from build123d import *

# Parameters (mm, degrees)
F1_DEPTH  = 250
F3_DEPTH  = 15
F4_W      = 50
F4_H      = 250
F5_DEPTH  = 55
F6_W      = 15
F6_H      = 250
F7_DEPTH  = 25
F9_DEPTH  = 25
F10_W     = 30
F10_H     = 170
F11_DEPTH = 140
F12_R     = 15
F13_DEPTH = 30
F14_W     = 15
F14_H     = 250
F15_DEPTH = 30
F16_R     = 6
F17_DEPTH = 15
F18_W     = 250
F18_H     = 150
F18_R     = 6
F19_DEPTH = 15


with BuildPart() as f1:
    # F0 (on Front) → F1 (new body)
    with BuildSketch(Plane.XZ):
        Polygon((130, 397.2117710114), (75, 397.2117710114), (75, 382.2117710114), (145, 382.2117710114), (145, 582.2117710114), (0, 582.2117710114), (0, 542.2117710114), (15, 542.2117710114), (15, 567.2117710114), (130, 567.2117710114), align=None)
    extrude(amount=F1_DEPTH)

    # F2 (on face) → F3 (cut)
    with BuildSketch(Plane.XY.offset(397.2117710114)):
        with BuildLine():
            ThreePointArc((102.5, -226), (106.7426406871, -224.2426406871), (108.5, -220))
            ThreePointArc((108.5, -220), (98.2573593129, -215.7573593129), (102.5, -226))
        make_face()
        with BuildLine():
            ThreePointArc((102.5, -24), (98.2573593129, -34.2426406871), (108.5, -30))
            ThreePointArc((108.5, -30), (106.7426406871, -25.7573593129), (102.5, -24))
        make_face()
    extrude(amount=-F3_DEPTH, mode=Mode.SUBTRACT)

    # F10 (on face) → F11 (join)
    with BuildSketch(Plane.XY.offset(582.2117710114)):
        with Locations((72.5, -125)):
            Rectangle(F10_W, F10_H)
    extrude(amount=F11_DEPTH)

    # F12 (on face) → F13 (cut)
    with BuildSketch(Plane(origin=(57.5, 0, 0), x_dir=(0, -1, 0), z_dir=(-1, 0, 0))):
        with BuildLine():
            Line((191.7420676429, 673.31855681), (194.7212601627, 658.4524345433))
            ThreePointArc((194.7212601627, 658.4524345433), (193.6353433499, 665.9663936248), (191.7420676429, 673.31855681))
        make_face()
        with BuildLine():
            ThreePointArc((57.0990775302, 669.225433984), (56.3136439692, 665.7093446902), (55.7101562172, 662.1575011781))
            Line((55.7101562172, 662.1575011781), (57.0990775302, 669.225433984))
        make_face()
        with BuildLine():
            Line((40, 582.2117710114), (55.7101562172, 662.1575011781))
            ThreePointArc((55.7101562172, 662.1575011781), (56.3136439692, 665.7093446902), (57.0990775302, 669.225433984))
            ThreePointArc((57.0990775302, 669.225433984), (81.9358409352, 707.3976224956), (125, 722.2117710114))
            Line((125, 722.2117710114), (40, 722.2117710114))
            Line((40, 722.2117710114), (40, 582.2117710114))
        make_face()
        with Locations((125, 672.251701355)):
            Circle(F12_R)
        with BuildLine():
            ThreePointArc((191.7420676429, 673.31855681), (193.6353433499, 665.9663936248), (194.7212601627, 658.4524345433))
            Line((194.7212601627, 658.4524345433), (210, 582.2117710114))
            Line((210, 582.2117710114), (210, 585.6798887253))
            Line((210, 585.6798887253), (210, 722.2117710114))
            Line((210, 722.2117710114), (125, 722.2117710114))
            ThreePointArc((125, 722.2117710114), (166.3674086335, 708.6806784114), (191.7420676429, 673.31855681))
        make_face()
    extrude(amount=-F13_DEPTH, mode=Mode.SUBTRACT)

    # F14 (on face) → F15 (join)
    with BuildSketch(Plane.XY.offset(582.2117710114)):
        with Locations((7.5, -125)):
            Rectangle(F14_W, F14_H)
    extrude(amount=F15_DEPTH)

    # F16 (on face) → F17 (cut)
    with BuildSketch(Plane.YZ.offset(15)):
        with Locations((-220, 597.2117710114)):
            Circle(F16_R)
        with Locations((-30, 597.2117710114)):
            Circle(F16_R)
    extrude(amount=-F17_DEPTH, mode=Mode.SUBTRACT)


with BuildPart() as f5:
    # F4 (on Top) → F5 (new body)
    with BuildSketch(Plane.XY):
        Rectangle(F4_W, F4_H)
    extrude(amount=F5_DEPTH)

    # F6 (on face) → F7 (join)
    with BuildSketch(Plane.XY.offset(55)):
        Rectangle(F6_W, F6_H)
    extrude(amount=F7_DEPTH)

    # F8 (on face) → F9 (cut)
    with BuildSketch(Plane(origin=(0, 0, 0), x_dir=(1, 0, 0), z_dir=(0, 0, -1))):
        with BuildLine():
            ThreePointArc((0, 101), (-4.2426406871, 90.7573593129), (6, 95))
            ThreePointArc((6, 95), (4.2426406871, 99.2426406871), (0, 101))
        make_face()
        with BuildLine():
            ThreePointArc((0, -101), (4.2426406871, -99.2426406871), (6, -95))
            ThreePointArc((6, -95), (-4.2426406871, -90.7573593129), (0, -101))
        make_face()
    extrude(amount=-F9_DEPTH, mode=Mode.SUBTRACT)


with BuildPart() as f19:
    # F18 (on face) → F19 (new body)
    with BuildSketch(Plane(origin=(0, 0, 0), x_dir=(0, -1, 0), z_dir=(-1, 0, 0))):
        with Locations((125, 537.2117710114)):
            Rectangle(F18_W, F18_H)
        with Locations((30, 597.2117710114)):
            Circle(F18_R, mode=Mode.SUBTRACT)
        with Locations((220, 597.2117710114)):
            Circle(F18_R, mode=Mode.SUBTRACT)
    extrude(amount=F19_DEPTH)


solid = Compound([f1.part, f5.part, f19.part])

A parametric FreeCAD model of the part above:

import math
import FreeCAD as App
import Part
import Sketcher

V = App.Vector

doc = App.newDocument("Part")
body = doc.addObject("PartDesign::Body", "Body")

# Sketch on XZ plane
sketch1 = body.newObject("Sketcher::SketchObject", "Sketch")
sketch1.AttachmentSupport = (doc.getObject("XZ_Plane"), [""])
sketch1.MapMode = "FlatFace"
sketch1.addGeometry([
    Part.LineSegment(V(130, 397.211771, 0), V(75, 397.211771, 0)),  # 0
    Part.LineSegment(V(75, 397.211771, 0), V(75, 382.211771, 0)),  # 1
    Part.LineSegment(V(75, 382.211771, 0), V(145, 382.211771, 0)),  # 2
    Part.LineSegment(V(145, 382.211771, 0), V(145, 582.211771, 0)),  # 3
    Part.LineSegment(V(145, 582.211771, 0), V(0, 582.211771, 0)),  # 4
    Part.LineSegment(V(0, 582.211771, 0), V(0, 542.211771, 0)),  # 5
    Part.LineSegment(V(0, 542.211771, 0), V(15, 542.211771, 0)),  # 6
    Part.LineSegment(V(15, 542.211771, 0), V(15, 567.211771, 0)),  # 7
    Part.LineSegment(V(15, 567.211771, 0), V(130, 567.211771, 0)),  # 8
    Part.LineSegment(V(130, 567.211771, 0), V(130, 397.211771, 0)),  # 9
], False)
sketch1.addConstraint([
    Sketcher.Constraint("Coincident", 0, 2, 1, 1),
    Sketcher.Constraint("Coincident", 1, 2, 2, 1),
    Sketcher.Constraint("Coincident", 2, 2, 3, 1),
    Sketcher.Constraint("Coincident", 3, 2, 4, 1),
    Sketcher.Constraint("Coincident", 4, 2, 5, 1),
    Sketcher.Constraint("Coincident", 5, 2, 6, 1),
    Sketcher.Constraint("Coincident", 6, 2, 7, 1),
    Sketcher.Constraint("Coincident", 7, 2, 8, 1),
    Sketcher.Constraint("Coincident", 8, 2, 9, 1),
    Sketcher.Constraint("Coincident", 9, 2, 0, 1),
    Sketcher.Constraint("Horizontal", 0),
    Sketcher.Constraint("Vertical", 1),
    Sketcher.Constraint("Horizontal", 2),
    Sketcher.Constraint("Vertical", 3),
    Sketcher.Constraint("Horizontal", 4),
    Sketcher.Constraint("Vertical", 5),
    Sketcher.Constraint("Horizontal", 6),
    Sketcher.Constraint("Vertical", 7),
    Sketcher.Constraint("Horizontal", 8),
    Sketcher.Constraint("Vertical", 9),
    Sketcher.Constraint("PointOnObject", 4, 2, -2),
    Sketcher.Constraint("Equal", 6, 1),
    Sketcher.Constraint("DistanceX", 0, 2, 0, 1, 55.0),
    Sketcher.Constraint("DistanceX", 2, 1, 2, 2, 70.0),
    Sketcher.Constraint("DistanceX", 4, 2, 4, 1, 145.0),
    Sketcher.Constraint("DistanceX", 6, 1, 6, 2, 15.0),
    Sketcher.Constraint("DistanceY", 3, 1, 3, 2, 200.0),
    Sketcher.Constraint("DistanceY", 5, 2, 5, 1, 40.0),
    Sketcher.Constraint("DistanceY", 7, 1, 7, 2, 25.0),
    Sketcher.Constraint("DistanceY", -1, 1, 0, 2, 397.211771),
])
pad1 = body.newObject("PartDesign::Pad", "Pad")
pad1.Profile = sketch1
pad1.Length = 250

# Sketch on XY plane
sketch2 = body.newObject("Sketcher::SketchObject", "Sketch001")
sketch2.AttachmentSupport = (doc.getObject("XY_Plane"), [""])
sketch2.MapMode = "FlatFace"
sketch2.AttachmentOffset = App.Placement(V(0, 0, 397.211771), App.Rotation())
sketch2.addGeometry([
    Part.ArcOfCircle(Part.Circle(V(102.5, -220, 0), V(0, 0, 1), 6), math.radians(-90), math.radians(0)),
    Part.ArcOfCircle(Part.Circle(V(102.5, -220, 0), V(0, 0, 1), 6), math.radians(0), math.radians(270)),
    Part.ArcOfCircle(Part.Circle(V(102.5, -30, 0), V(0, 0, 1), 6), math.radians(90), math.radians(360)),
    Part.ArcOfCircle(Part.Circle(V(102.5, -30, 0), V(0, 0, 1), 6), math.radians(0), math.radians(90)),
], False)
sketch2.addConstraint([
    Sketcher.Constraint("Tangent", 0, 1, 1, 2),
    Sketcher.Constraint("Coincident", 1, 1, 0, 2),
    Sketcher.Constraint("Tangent", 2, 1, 3, 2),
    Sketcher.Constraint("Coincident", 3, 1, 2, 2),
    Sketcher.Constraint("Equal", 1, 2),
    Sketcher.Constraint("Horizontal", 0, 3, 1, 1),
    Sketcher.Constraint("Horizontal", 2, 3, 3, 1),
    Sketcher.Constraint("Vertical", 1, 3, 2, 3),
    Sketcher.Constraint("Vertical", 3, 3, 0, 1),
    Sketcher.Constraint("Vertical", 0, 1, 2, 1),
    Sketcher.Constraint("Radius", 0, 6.0),
    Sketcher.Constraint("DistanceY", 0, 3, -1, 1, 220.0),
    Sketcher.Constraint("DistanceY", 2, 3, -1, 1, 30.0),
    Sketcher.Constraint("DistanceX", -1, 1, 0, 3, 102.5),
])
pocket1 = body.newObject("PartDesign::Pocket", "Pocket")
pocket1.Profile = sketch2
pocket1.Length = 15

# Sketch on XY plane
sketch3 = body.newObject("Sketcher::SketchObject", "Sketch002")
sketch3.AttachmentSupport = (doc.getObject("XY_Plane"), [""])
sketch3.MapMode = "FlatFace"
sketch3.AttachmentOffset = App.Placement(V(0, 0, 582.211771), App.Rotation())
sketch3.addGeometry([
    Part.LineSegment(V(57.5, -40, 0), V(57.5, -210, 0)),
    Part.LineSegment(V(57.5, -210, 0), V(87.5, -210, 0)),
    Part.LineSegment(V(87.5, -210, 0), V(87.5, -40, 0)),
    Part.LineSegment(V(87.5, -40, 0), V(57.5, -40, 0)),
], False)
sketch3.addConstraint([
    Sketcher.Constraint("Coincident", 0, 2, 1, 1),
    Sketcher.Constraint("Coincident", 1, 2, 2, 1),
    Sketcher.Constraint("Coincident", 2, 2, 3, 1),
    Sketcher.Constraint("Coincident", 3, 2, 0, 1),
    Sketcher.Constraint("Vertical", 0),
    Sketcher.Constraint("Horizontal", 1),
    Sketcher.Constraint("Vertical", 2),
    Sketcher.Constraint("Horizontal", 3),
    Sketcher.Constraint("DistanceX", 1, 1, 1, 2, 30.0),
    Sketcher.Constraint("DistanceY", 0, 2, 0, 1, 170.0),
    Sketcher.Constraint("DistanceY", 0, 2, -1, 1, 210.0),
    Sketcher.Constraint("DistanceX", -1, 1, 0, 2, 57.5),
])
pad2 = body.newObject("PartDesign::Pad", "Pad001")
pad2.Profile = sketch3
pad2.Length = 140

# Sketch on YZ plane
sketch4 = body.newObject("Sketcher::SketchObject", "Sketch003")
sketch4.AttachmentSupport = (doc.getObject("YZ_Plane"), [""])
sketch4.MapMode = "FlatFace"
sketch4.AttachmentOffset = App.Placement(V(0, 0, 57.5), App.Rotation())
sketch4.addGeometry([
    Part.LineSegment(V(-191.742068, 673.318557, 0), V(-194.72126, 658.452435, 0)),  # 0
    Part.LineSegment(V(-194.72126, 658.452435, 0), V(-210, 582.211771, 0)),  # 1
    Part.LineSegment(V(-210, 582.211771, 0), V(-210, 722.211771, 0)),  # 2
    Part.LineSegment(V(-210, 722.211771, 0), V(-125, 722.211771, 0)),  # 3
    Part.ArcOfCircle(Part.Circle(V(-125, 652.211771, 0), V(0, 0, 1), 70), math.radians(90), math.radians(162.450748)),  # 4
    Part.LineSegment(V(-55.710156, 662.157501, 0), V(-57.099078, 669.225434, 0)),  # 5
    Part.ArcOfCircle(Part.Circle(V(-125, 652.211771, 0), V(0, 0, 1), 70), math.radians(14.066762), math.radians(90)),  # 6
    Part.LineSegment(V(-125, 722.211771, 0), V(-40, 722.211771, 0)),  # 7
    Part.LineSegment(V(-40, 722.211771, 0), V(-40, 582.211771, 0)),  # 8
    Part.LineSegment(V(-40, 582.211771, 0), V(-55.710156, 662.157501, 0)),  # 9
    Part.Circle(V(-125, 672.251701, 0), V(0, 0, 1), 15),  # 10
], False)
sketch4.addConstraint([
    Sketcher.Constraint("Coincident", 0, 2, 1, 1),
    Sketcher.Constraint("Coincident", 1, 2, 2, 1),
    Sketcher.Constraint("Coincident", 2, 2, 3, 1),
    Sketcher.Constraint("Tangent", 3, 2, 4, 1),
    Sketcher.Constraint("Coincident", 4, 2, 0, 1),
    Sketcher.Constraint("Coincident", 5, 2, 6, 1),
    Sketcher.Constraint("Tangent", 6, 2, 7, 1),
    Sketcher.Constraint("Coincident", 7, 2, 8, 1),
    Sketcher.Constraint("Coincident", 8, 2, 9, 1),
    Sketcher.Constraint("Coincident", 9, 2, 5, 1),
    Sketcher.Constraint("Vertical", 2),
    Sketcher.Constraint("Horizontal", 3),
    Sketcher.Constraint("Horizontal", 7),
    Sketcher.Constraint("Vertical", 8),
    Sketcher.Constraint("Coincident", 6, 3, 4, 3),
    Sketcher.Constraint("Equal", 4, 6),
    Sketcher.Constraint("Parallel", 0, 1),
    Sketcher.Constraint("Parallel", 5, 9),
    Sketcher.Constraint("Horizontal", 1, 2, 8, 2),
    Sketcher.Constraint("Vertical", 6, 3, 10, 3),
    Sketcher.Constraint("Equal", 3, 7),
    Sketcher.Constraint("Diameter", 10, 30.0),
    Sketcher.Constraint("Radius", 4, 70.0),
    Sketcher.Constraint("DistanceX", 3, 1, 3, 2, 85.0),
    Sketcher.Constraint("DistanceY", 2, 1, 2, 2, 140.0),
    Sketcher.Constraint("DistanceX", 4, 3, -1, 1, 125.0),
    Sketcher.Constraint("Distance", 0, 15.161701),
    Sketcher.Constraint("DistanceY", -1, 1, 10, 3, 672.251701),
    Sketcher.Constraint("DistanceY", -1, 1, 9, 2, 662.157501),
    Sketcher.Constraint("Distance", 5, 7.203109),
    Sketcher.Constraint("DistanceY", -1, 1, 4, 3, 652.211771),
    Sketcher.Constraint("DistanceX", 0, 2, -1, 1, 194.72126),
])
pocket2 = body.newObject("PartDesign::Pocket", "Pocket001")
pocket2.Profile = sketch4
pocket2.Length = 30
pocket2.Reversed = True

# Sketch on XY plane
sketch5 = body.newObject("Sketcher::SketchObject", "Sketch004")
sketch5.AttachmentSupport = (doc.getObject("XY_Plane"), [""])
sketch5.MapMode = "FlatFace"
sketch5.AttachmentOffset = App.Placement(V(0, 0, 582.211771), App.Rotation())
sketch5.addGeometry([
    Part.LineSegment(V(0, 0, 0), V(0, -250, 0)),
    Part.LineSegment(V(0, -250, 0), V(15, -250, 0)),
    Part.LineSegment(V(15, -250, 0), V(15, 0, 0)),
    Part.LineSegment(V(15, 0, 0), V(0, 0, 0)),
], False)
sketch5.addConstraint([
    Sketcher.Constraint("Coincident", 0, 2, 1, 1),
    Sketcher.Constraint("Coincident", 1, 2, 2, 1),
    Sketcher.Constraint("Coincident", 2, 2, 3, 1),
    Sketcher.Constraint("Coincident", 3, 2, 0, 1),
    Sketcher.Constraint("Vertical", 0),
    Sketcher.Constraint("Horizontal", 1),
    Sketcher.Constraint("Vertical", 2),
    Sketcher.Constraint("Horizontal", 3),
    Sketcher.Constraint("Coincident", 3, 2, -1, 1),
    Sketcher.Constraint("DistanceX", 1, 1, 1, 2, 15.0),
    Sketcher.Constraint("DistanceY", 0, 2, 0, 1, 250.0),
])
pad3 = body.newObject("PartDesign::Pad", "Pad002")
pad3.Profile = sketch5
pad3.Length = 30

# Sketch on YZ plane
sketch6 = body.newObject("Sketcher::SketchObject", "Sketch005")
sketch6.AttachmentSupport = (doc.getObject("YZ_Plane"), [""])
sketch6.MapMode = "FlatFace"
sketch6.AttachmentOffset = App.Placement(V(0, 0, 15), App.Rotation())
sketch6.addGeometry([
    Part.Circle(V(-220, 597.211771, 0), V(0, 0, 1), 6),
    Part.Circle(V(-30, 597.211771, 0), V(0, 0, 1), 6),
], False)
sketch6.addConstraint([
    Sketcher.Constraint("Equal", 0, 1),
    Sketcher.Constraint("Horizontal", 0, 3, 1, 3),
    Sketcher.Constraint("Diameter", 0, 12.0),
    Sketcher.Constraint("DistanceX", 0, 3, -1, 1, 220.0),
    Sketcher.Constraint("DistanceX", 1, 3, -1, 1, 30.0),
    Sketcher.Constraint("DistanceY", -1, 1, 0, 3, 597.211771),
])
pocket3 = body.newObject("PartDesign::Pocket", "Pocket002")
pocket3.Profile = sketch6
pocket3.Length = 15
body2 = doc.addObject("PartDesign::Body", "Body001")

# Sketch on XY plane
sketch7 = body2.newObject("Sketcher::SketchObject", "Sketch006")
sketch7.AttachmentSupport = (doc.getObject("XY_Plane001"), [""])
sketch7.MapMode = "FlatFace"
sketch7.addGeometry([
    Part.LineSegment(V(-25, 125, 0), V(-25, -125, 0)),
    Part.LineSegment(V(-25, -125, 0), V(25, -125, 0)),
    Part.LineSegment(V(25, -125, 0), V(25, 125, 0)),
    Part.LineSegment(V(25, 125, 0), V(-25, 125, 0)),
], False)
sketch7.addConstraint([
    Sketcher.Constraint("Coincident", 0, 2, 1, 1),
    Sketcher.Constraint("Coincident", 1, 2, 2, 1),
    Sketcher.Constraint("Coincident", 2, 2, 3, 1),
    Sketcher.Constraint("Coincident", 3, 2, 0, 1),
    Sketcher.Constraint("Vertical", 0),
    Sketcher.Constraint("Horizontal", 1),
    Sketcher.Constraint("Vertical", 2),
    Sketcher.Constraint("Horizontal", 3),
    Sketcher.Constraint("Symmetric", 0, 2, 2, 2, -1, 1),
    Sketcher.Constraint("DistanceX", 1, 1, 1, 2, 50.0),
    Sketcher.Constraint("DistanceY", 0, 2, 0, 1, 250.0),
])
pad4 = body2.newObject("PartDesign::Pad", "Pad003")
pad4.Profile = sketch7
pad4.Length = 55

# Sketch on XY plane
sketch8 = body2.newObject("Sketcher::SketchObject", "Sketch007")
sketch8.AttachmentSupport = (doc.getObject("XY_Plane001"), [""])
sketch8.MapMode = "FlatFace"
sketch8.AttachmentOffset = App.Placement(V(0, 0, 55), App.Rotation())
sketch8.addGeometry([
    Part.LineSegment(V(-7.5, 125, 0), V(-7.5, -125, 0)),
    Part.LineSegment(V(-7.5, -125, 0), V(7.5, -125, 0)),
    Part.LineSegment(V(7.5, -125, 0), V(7.5, 125, 0)),
    Part.LineSegment(V(7.5, 125, 0), V(-7.5, 125, 0)),
], False)
sketch8.addConstraint([
    Sketcher.Constraint("Coincident", 0, 2, 1, 1),
    Sketcher.Constraint("Coincident", 1, 2, 2, 1),
    Sketcher.Constraint("Coincident", 2, 2, 3, 1),
    Sketcher.Constraint("Coincident", 3, 2, 0, 1),
    Sketcher.Constraint("Vertical", 0),
    Sketcher.Constraint("Horizontal", 1),
    Sketcher.Constraint("Vertical", 2),
    Sketcher.Constraint("Horizontal", 3),
    Sketcher.Constraint("Symmetric", 0, 2, 2, 2, -1, 1),
    Sketcher.Constraint("DistanceX", 1, 1, 1, 2, 15.0),
    Sketcher.Constraint("DistanceY", 0, 2, 0, 1, 250.0),
])
pad5 = body2.newObject("PartDesign::Pad", "Pad004")
pad5.Profile = sketch8
pad5.Length = 25

# Sketch on XY plane
sketch9 = body2.newObject("Sketcher::SketchObject", "Sketch008")
sketch9.AttachmentSupport = (doc.getObject("XY_Plane001"), [""])
sketch9.MapMode = "FlatFace"
sketch9.addGeometry([
    Part.ArcOfCircle(Part.Circle(V(0, -95, 0), V(0, 0, 1), 6), math.radians(0), math.radians(270)),
    Part.ArcOfCircle(Part.Circle(V(0, -95, 0), V(0, 0, 1), 6), math.radians(-90), math.radians(0)),
    Part.ArcOfCircle(Part.Circle(V(0, 95, 0), V(0, 0, 1), 6), math.radians(0), math.radians(90)),
    Part.ArcOfCircle(Part.Circle(V(0, 95, 0), V(0, 0, 1), 6), math.radians(90), math.radians(360)),
], False)
sketch9.addConstraint([
    Sketcher.Constraint("Tangent", 0, 1, 1, 2),
    Sketcher.Constraint("Coincident", 1, 1, 0, 2),
    Sketcher.Constraint("Tangent", 2, 1, 3, 2),
    Sketcher.Constraint("Coincident", 3, 1, 2, 2),
    Sketcher.Constraint("Equal", 1, 2),
    Sketcher.Constraint("Symmetric", 0, 3, 2, 3, -1, 1),
    Sketcher.Constraint("Symmetric", 0, 1, 2, 1, -1),
    Sketcher.Constraint("PointOnObject", 1, 1, -2),
    Sketcher.Constraint("PointOnObject", 3, 1, -2),
    Sketcher.Constraint("Horizontal", 1, 3, 0, 1),
    Sketcher.Constraint("Radius", 0, 6.0),
    Sketcher.Constraint("DistanceY", 0, 3, -1, 1, 95.0),
])
pocket4 = body2.newObject("PartDesign::Pocket", "Pocket003")
pocket4.Profile = sketch9
pocket4.Length = 25
pocket4.Reversed = True
body3 = doc.addObject("PartDesign::Body", "Body002")

# Sketch on YZ plane
sketch10 = body3.newObject("Sketcher::SketchObject", "Sketch009")
sketch10.AttachmentSupport = (doc.getObject("YZ_Plane002"), [""])
sketch10.MapMode = "FlatFace"
sketch10.addGeometry([
    Part.LineSegment(V(0, 612.211771, 0), V(0, 462.211771, 0)),  # 0
    Part.LineSegment(V(0, 462.211771, 0), V(-250, 462.211771, 0)),  # 1
    Part.LineSegment(V(-250, 462.211771, 0), V(-250, 612.211771, 0)),  # 2
    Part.LineSegment(V(-250, 612.211771, 0), V(0, 612.211771, 0)),  # 3
    Part.Circle(V(-30, 597.211771, 0), V(0, 0, 1), 6),  # 4
    Part.Circle(V(-220, 597.211771, 0), V(0, 0, 1), 6),  # 5
], False)
sketch10.addConstraint([
    Sketcher.Constraint("Coincident", 0, 2, 1, 1),
    Sketcher.Constraint("Coincident", 1, 2, 2, 1),
    Sketcher.Constraint("Coincident", 2, 2, 3, 1),
    Sketcher.Constraint("Coincident", 3, 2, 0, 1),
    Sketcher.Constraint("Vertical", 0),
    Sketcher.Constraint("Horizontal", 1),
    Sketcher.Constraint("Vertical", 2),
    Sketcher.Constraint("Horizontal", 3),
    Sketcher.Constraint("Equal", 4, 5),
    Sketcher.Constraint("PointOnObject", 0, 2, -2),
    Sketcher.Constraint("Horizontal", 4, 3, 5, 3),
    Sketcher.Constraint("Diameter", 4, 12.0),
    Sketcher.Constraint("DistanceX", 1, 2, 1, 1, 250.0),
    Sketcher.Constraint("DistanceY", 0, 2, 0, 1, 150.0),
    Sketcher.Constraint("DistanceX", 4, 3, -1, 1, 30.0),
    Sketcher.Constraint("DistanceX", 5, 3, -1, 1, 220.0),
    Sketcher.Constraint("DistanceY", 0, 2, 4, 3, 135.0),
    Sketcher.Constraint("DistanceY", -1, 1, 4, 3, 597.211771),
])
pad6 = body3.newObject("PartDesign::Pad", "Pad005")
pad6.Profile = sketch10
pad6.Length = 15
pad6.Reversed = True

doc.recompute()
